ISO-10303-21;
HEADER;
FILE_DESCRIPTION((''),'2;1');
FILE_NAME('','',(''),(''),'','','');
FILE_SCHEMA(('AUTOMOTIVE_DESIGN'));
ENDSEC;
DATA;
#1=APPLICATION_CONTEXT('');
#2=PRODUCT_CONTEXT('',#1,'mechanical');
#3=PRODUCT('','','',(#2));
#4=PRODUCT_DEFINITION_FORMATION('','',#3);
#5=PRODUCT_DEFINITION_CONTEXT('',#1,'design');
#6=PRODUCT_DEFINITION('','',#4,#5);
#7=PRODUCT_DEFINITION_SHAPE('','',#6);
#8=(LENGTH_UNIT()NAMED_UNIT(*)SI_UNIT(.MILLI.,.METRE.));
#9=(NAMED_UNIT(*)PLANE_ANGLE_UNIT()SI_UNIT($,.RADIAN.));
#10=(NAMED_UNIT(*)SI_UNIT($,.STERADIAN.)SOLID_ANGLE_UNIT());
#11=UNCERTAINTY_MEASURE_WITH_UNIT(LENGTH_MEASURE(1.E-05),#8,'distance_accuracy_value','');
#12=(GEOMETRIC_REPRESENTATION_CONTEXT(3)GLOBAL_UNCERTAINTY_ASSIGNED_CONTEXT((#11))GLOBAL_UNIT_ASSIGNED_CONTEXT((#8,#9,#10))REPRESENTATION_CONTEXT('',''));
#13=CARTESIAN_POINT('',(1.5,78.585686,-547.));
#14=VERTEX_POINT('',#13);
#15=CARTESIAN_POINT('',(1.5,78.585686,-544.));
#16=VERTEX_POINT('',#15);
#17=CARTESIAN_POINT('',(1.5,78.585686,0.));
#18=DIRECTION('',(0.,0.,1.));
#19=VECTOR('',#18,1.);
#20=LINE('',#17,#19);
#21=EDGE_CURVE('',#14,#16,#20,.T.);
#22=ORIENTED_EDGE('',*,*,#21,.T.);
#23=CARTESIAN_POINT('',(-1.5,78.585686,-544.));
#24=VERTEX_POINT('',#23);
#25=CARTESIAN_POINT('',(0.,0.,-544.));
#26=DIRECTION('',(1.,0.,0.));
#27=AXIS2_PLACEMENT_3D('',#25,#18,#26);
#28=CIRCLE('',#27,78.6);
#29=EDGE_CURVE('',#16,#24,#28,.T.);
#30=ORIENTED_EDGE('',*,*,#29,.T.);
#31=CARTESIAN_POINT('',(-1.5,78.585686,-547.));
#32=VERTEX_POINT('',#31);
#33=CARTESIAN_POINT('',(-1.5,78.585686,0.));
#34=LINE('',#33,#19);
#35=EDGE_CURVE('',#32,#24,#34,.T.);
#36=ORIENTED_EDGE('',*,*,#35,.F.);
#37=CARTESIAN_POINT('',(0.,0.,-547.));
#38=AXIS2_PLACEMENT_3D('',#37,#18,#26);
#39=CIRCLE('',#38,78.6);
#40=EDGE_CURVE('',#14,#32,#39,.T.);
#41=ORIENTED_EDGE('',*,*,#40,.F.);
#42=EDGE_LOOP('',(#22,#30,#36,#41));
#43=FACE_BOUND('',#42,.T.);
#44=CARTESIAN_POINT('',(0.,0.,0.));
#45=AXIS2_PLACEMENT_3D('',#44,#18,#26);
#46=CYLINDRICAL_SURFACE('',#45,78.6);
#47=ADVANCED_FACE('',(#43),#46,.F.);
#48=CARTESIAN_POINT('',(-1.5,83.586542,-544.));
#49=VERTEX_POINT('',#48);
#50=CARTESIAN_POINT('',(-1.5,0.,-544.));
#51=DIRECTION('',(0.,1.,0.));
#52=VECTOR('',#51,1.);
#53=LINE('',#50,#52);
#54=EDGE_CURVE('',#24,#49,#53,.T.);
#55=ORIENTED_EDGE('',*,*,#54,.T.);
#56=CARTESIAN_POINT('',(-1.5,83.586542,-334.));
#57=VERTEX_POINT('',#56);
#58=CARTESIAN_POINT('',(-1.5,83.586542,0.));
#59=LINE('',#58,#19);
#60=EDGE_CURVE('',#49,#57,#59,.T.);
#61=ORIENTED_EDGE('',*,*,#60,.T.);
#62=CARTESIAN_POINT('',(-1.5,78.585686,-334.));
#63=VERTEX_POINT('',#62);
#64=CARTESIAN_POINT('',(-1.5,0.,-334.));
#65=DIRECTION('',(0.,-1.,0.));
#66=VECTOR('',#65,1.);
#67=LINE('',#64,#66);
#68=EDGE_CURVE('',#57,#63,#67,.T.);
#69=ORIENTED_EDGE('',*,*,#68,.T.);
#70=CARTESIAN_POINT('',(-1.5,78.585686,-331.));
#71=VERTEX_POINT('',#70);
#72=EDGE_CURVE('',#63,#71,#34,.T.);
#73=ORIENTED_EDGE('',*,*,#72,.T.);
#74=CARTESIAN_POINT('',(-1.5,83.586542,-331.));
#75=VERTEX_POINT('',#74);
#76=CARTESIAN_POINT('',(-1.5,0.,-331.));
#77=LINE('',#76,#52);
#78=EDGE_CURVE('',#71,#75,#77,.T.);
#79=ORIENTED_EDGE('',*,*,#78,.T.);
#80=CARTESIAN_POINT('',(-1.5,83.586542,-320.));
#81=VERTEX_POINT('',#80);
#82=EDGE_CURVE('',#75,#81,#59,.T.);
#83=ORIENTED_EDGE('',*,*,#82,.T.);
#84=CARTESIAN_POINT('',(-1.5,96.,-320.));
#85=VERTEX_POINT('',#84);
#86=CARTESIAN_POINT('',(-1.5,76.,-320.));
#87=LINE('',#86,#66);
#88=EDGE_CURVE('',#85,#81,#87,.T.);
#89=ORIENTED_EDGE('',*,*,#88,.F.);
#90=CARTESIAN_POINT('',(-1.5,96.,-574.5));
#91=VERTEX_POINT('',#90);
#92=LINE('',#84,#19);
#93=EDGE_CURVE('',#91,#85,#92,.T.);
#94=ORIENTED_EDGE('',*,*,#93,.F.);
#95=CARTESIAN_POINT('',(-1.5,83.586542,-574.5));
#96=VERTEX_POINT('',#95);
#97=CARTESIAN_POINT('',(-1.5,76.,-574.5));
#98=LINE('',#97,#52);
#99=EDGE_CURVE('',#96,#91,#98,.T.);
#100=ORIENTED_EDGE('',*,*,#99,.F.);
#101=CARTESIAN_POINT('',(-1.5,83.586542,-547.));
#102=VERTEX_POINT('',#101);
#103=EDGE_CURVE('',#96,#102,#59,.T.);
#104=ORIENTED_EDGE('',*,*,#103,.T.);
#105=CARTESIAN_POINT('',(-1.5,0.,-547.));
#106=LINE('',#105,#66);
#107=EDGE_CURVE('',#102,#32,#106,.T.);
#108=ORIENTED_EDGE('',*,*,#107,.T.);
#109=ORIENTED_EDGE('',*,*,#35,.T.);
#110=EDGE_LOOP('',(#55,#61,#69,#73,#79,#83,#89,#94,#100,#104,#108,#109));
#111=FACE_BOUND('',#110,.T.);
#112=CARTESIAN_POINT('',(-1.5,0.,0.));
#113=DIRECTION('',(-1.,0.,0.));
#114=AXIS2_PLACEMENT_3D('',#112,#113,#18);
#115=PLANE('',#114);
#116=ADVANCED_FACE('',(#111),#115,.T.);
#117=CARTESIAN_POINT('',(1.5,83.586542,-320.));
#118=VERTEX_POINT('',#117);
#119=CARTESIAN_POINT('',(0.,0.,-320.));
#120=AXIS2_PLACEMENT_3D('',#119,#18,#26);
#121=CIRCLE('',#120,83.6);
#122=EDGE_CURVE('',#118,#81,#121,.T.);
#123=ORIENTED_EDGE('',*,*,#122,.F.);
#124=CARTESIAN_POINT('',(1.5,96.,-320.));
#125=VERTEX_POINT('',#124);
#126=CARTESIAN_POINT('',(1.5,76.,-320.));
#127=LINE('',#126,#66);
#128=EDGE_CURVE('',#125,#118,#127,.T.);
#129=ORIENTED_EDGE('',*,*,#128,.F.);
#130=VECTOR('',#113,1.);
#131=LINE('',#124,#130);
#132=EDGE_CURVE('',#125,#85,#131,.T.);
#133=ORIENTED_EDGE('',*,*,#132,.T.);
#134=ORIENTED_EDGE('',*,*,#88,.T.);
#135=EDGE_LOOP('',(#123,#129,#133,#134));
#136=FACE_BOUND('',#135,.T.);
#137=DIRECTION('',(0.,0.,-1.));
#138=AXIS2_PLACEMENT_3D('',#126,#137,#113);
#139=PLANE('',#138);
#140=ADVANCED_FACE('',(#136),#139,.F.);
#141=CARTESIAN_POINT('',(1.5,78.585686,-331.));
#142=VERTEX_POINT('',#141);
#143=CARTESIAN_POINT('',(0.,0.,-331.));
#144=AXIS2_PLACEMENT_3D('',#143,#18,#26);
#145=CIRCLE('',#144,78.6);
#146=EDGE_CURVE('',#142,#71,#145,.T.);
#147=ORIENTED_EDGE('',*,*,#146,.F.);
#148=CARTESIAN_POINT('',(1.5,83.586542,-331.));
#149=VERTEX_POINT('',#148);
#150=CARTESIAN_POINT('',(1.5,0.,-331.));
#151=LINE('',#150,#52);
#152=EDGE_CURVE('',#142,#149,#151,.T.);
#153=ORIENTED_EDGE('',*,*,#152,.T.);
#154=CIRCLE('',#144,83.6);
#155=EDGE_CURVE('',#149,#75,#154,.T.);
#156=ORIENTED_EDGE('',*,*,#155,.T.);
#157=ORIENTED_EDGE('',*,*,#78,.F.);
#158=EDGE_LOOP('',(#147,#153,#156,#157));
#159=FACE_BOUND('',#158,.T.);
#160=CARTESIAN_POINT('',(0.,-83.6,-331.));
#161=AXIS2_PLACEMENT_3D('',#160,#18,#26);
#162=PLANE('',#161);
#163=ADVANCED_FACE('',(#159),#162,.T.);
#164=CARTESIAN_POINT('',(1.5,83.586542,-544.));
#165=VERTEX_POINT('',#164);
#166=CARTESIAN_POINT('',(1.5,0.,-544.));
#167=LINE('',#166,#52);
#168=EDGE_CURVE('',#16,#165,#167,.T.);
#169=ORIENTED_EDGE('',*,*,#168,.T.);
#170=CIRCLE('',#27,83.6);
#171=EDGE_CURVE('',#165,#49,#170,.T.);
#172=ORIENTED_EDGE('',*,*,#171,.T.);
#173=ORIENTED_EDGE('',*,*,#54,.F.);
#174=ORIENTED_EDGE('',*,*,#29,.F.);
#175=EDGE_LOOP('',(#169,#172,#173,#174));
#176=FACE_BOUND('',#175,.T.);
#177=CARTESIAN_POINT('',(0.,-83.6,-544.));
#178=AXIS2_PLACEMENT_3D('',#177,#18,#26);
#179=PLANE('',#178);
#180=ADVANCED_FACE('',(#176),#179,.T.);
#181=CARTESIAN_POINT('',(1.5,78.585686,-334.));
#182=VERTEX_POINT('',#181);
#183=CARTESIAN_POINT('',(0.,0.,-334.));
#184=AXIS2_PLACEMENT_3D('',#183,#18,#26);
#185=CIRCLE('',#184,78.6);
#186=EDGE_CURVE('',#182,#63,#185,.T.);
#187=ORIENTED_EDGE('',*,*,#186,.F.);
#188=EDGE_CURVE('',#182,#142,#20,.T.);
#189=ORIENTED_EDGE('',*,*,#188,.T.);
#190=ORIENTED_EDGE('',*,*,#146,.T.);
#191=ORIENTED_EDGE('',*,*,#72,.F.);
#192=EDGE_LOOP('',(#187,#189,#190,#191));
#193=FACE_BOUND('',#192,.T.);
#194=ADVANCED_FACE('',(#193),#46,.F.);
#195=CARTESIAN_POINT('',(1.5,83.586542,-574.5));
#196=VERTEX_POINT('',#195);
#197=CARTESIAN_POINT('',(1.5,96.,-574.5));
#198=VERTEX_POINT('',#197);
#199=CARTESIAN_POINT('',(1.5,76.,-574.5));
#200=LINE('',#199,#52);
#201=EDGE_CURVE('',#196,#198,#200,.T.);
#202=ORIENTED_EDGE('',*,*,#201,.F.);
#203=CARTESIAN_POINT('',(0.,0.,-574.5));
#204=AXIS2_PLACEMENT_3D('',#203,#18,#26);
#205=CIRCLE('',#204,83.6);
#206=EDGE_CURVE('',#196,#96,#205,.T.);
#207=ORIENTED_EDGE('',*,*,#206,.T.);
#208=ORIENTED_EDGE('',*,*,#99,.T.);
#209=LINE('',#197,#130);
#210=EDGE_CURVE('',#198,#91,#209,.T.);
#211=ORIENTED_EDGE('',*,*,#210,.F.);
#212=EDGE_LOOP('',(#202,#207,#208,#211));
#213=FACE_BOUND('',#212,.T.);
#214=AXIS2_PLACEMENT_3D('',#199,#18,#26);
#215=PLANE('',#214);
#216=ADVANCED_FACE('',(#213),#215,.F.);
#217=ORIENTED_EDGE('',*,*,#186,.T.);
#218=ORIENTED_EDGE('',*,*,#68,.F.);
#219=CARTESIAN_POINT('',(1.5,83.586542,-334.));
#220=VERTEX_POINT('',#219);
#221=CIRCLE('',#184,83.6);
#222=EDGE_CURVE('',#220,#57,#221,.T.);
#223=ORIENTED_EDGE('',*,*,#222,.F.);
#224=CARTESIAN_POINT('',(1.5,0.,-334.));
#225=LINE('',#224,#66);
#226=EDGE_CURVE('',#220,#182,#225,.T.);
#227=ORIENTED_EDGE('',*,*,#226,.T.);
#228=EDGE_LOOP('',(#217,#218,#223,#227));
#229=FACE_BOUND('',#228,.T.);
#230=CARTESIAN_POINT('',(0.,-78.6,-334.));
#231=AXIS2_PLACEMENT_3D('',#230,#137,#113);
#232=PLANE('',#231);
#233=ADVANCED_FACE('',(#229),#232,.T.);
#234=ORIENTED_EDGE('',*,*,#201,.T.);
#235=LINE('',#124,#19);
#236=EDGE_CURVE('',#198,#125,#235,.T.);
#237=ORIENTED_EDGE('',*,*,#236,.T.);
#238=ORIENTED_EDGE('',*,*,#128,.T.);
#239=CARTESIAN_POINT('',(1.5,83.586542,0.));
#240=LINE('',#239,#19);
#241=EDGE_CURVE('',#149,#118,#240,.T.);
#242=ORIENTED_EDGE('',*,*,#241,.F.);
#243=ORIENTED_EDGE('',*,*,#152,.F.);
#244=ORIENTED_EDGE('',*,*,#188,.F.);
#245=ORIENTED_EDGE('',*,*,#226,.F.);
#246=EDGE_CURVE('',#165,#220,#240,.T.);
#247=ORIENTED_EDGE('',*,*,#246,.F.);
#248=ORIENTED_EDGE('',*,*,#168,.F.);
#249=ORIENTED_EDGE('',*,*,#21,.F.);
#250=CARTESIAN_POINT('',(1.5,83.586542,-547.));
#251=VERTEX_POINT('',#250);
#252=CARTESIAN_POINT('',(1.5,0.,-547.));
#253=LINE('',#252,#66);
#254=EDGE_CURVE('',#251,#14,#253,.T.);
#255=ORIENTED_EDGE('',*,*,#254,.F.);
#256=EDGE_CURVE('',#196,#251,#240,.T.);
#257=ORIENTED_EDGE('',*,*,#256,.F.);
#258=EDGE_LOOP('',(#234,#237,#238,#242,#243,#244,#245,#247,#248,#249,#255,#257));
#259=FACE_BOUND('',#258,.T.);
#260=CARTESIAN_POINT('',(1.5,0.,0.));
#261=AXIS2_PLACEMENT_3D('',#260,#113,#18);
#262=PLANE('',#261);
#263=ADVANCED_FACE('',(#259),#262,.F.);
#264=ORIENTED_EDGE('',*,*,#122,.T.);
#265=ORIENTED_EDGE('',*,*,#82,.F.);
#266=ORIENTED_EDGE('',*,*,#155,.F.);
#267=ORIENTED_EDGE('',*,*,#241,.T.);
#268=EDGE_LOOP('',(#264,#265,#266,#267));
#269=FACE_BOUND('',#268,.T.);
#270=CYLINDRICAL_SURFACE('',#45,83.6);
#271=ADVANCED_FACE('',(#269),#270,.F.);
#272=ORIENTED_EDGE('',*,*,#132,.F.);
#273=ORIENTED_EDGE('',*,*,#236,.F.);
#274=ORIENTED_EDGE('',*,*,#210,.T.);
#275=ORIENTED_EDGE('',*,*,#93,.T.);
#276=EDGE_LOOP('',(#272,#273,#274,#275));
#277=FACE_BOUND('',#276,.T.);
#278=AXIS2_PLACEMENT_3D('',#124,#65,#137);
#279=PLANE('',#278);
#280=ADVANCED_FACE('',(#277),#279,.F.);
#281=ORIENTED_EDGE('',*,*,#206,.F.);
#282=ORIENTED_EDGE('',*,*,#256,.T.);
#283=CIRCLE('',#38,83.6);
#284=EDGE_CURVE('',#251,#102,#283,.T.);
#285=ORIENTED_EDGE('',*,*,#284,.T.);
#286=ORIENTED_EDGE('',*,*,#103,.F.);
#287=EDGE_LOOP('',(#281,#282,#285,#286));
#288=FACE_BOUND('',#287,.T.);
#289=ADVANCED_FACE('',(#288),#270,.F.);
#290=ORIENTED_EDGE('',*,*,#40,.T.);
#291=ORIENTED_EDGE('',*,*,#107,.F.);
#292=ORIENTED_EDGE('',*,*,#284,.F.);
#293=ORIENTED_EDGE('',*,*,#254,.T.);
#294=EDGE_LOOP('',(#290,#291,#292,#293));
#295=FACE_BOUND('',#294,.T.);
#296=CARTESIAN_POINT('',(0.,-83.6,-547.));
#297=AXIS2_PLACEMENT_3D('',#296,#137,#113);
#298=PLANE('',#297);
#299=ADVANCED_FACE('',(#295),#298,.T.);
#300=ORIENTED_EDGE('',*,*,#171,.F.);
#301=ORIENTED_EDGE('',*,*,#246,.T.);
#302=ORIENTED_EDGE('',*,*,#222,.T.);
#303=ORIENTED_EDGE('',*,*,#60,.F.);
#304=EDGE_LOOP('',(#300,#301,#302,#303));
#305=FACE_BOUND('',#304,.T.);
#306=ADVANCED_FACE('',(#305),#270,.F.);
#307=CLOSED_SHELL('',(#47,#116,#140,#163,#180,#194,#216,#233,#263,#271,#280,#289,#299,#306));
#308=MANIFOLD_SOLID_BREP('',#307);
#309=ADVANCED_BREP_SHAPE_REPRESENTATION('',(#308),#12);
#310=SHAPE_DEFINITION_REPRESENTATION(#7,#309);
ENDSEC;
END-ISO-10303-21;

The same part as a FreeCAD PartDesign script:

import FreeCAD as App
import Part
import Sketcher

V = App.Vector
Q = App.Units.Quantity


def add_polygon(sketch, points):
    """Adds a closed chain of lines whose ends are joined by coincident constraints."""
    first, n = sketch.GeometryCount, len(points)
    for a, b in zip(points, points[1:] + points[:1]):
        sketch.addGeometry(Part.LineSegment(App.Vector(*a, 0), App.Vector(*b, 0)), False)
    for i in range(n):
        sketch.addConstraint(Sketcher.Constraint("Coincident", first + i, 2, first + (i + 1) % n, 1))

doc = App.newDocument("Part")
params = doc.addObject("Spreadsheet::Sheet", "Params")
for row, (alias, value) in enumerate([
    ("sketch1_width", "20 mm"),
    ("sketch1_height", "254.5 mm"),
    ("pad1_length", "3 mm"),
    ("sketch2_width", "5 mm"),
    ("sketch2_height", "11 mm"),
    ("sketch2_height2", "3 mm"),
    ("sketch2_height3", "210 mm"),
    ("sketch2_height4", "254.5 mm"),
    ("groove_angle", "180 deg"),
    ("sketch3_width", "5 mm"),
    ("sketch3_height", "11 mm"),
    ("sketch3_height2", "3 mm"),
    ("sketch3_height3", "210 mm"),
    ("sketch3_height4", "254.5 mm"),
    ("groove2_angle", "180 deg"),
], start=1):
    params.set(f"A{row}", alias)
    params.set(f"B{row}", "=" + value)
    params.setAlias(f"B{row}", alias)

body = doc.addObject("PartDesign::Body", "Body")

sketch1 = body.newObject("Sketcher::SketchObject", "Sketch")
sketch1.AttachmentSupport = (doc.getObject("YZ_Plane"), [""])
sketch1.MapMode = "FlatFace"
add_polygon(sketch1, [(96, -320), (76, -320), (76, -574), (96, -574)])
sketch1.addConstraint(Sketcher.Constraint("Horizontal", 0))
sketch1.addConstraint(Sketcher.Constraint("Vertical", 1))
sketch1.addConstraint(Sketcher.Constraint("Horizontal", 2))
sketch1.addConstraint(Sketcher.Constraint("Vertical", 3))
sketch1.addConstraint(Sketcher.Constraint("DistanceX", 0, 2, 0, 1, Q("20 mm")))
sketch1.addConstraint(Sketcher.Constraint("DistanceY", 1, 2, 1, 1, Q("254.5 mm")))
sketch1.addConstraint(Sketcher.Constraint("DistanceX", -1, 1, 0, 2, Q("76 mm")))
sketch1.addConstraint(Sketcher.Constraint("DistanceY", 0, 2, -1, 1, Q("320 mm")))
sketch1.setExpression("Constraints[8]", "Params.sketch1_width")
sketch1.setExpression("Constraints[9]", "Params.sketch1_height")
pad1 = body.newObject("PartDesign::Pad", "Pad")
pad1.Profile = sketch1
pad1.setExpression("Length", "Params.pad1_length")
pad1.Midplane = True

sketch2 = body.newObject("Sketcher::SketchObject", "Sketch001")
sketch2.AttachmentSupport = (doc.getObject("YZ_Plane"), [""])
sketch2.MapMode = "FlatFace"
add_polygon(sketch2, [(83.6, -331), (83.6, -320), (65.2, -320), (65.2, -574.5), (83.6, -574.5), (83.6, -547), (78.6, -547), (78.6, -544), (83.6, -544), (83.6, -334), (78.6, -334), (78.6, -331)])
sketch2.addConstraint(Sketcher.Constraint("Vertical", 0))
sketch2.addConstraint(Sketcher.Constraint("Horizontal", 1))
sketch2.addConstraint(Sketcher.Constraint("Vertical", 2))
sketch2.addConstraint(Sketcher.Constraint("Horizontal", 3))
sketch2.addConstraint(Sketcher.Constraint("Vertical", 4))
sketch2.addConstraint(Sketcher.Constraint("Horizontal", 5))
sketch2.addConstraint(Sketcher.Constraint("Vertical", 6))
sketch2.addConstraint(Sketcher.Constraint("Horizontal", 7))
sketch2.addConstraint(Sketcher.Constraint("Vertical", 8))
sketch2.addConstraint(Sketcher.Constraint("Horizontal", 9))
sketch2.addConstraint(Sketcher.Constraint("Vertical", 10))
sketch2.addConstraint(Sketcher.Constraint("Horizontal", 11))
sketch2.addConstraint(Sketcher.Constraint("Vertical", 0, 2, 3, 2))
sketch2.addConstraint(Sketcher.Constraint("Vertical", 4, 2, 7, 2))
sketch2.addConstraint(Sketcher.Constraint("Vertical", 6, 2, 9, 2))
sketch2.addConstraint(Sketcher.Constraint("Equal", 6, 10))
sketch2.addConstraint(Sketcher.Constraint("DistanceX", 5, 2, 5, 1, Q("5 mm")))
sketch2.addConstraint(Sketcher.Constraint("DistanceY", 0, 1, 0, 2, Q("11 mm")))
sketch2.addConstraint(Sketcher.Constraint("DistanceY", 6, 1, 6, 2, Q("3 mm")))
sketch2.addConstraint(Sketcher.Constraint("DistanceY", 8, 1, 8, 2, Q("210 mm")))
sketch2.addConstraint(Sketcher.Constraint("DistanceY", 2, 2, 2, 1, Q("254.5 mm")))
sketch2.addConstraint(Sketcher.Constraint("DistanceY", 0, 2, -1, 1, Q("320 mm")))
sketch2.addConstraint(Sketcher.Constraint("DistanceX", -1, 1, 0, 2, Q("83.6 mm")))
sketch2.addConstraint(Sketcher.Constraint("DistanceX", 1, 2, 1, 1, Q("18.364244 mm")))
sketch2.setExpression("Constraints[28]", "Params.sketch2_width")
sketch2.setExpression("Constraints[29]", "Params.sketch2_height")
sketch2.setExpression("Constraints[30]", "Params.sketch2_height2")
sketch2.setExpression("Constraints[31]", "Params.sketch2_height3")
sketch2.setExpression("Constraints[32]", "Params.sketch2_height4")
groove = body.newObject("PartDesign::Groove", "Groove")
groove.Profile = sketch2
groove.ReferenceAxis = (sketch2, ["V_Axis"])
groove.setExpression("Angle", "Params.groove_angle")
groove.Reversed = True

sketch3 = body.newObject("Sketcher::SketchObject", "Sketch002")
sketch3.AttachmentSupport = (doc.getObject("YZ_Plane"), [""])
sketch3.MapMode = "FlatFace"
add_polygon(sketch3, [(83.6, -331), (83.6, -320), (65.2, -320), (65.2, -574.5), (83.6, -574.5), (83.6, -547), (78.6, -547), (78.6, -544), (83.6, -544), (83.6, -334), (78.6, -334), (78.6, -331)])
sketch3.addConstraint(Sketcher.Constraint("Vertical", 0))
sketch3.addConstraint(Sketcher.Constraint("Horizontal", 1))
sketch3.addConstraint(Sketcher.Constraint("Vertical", 2))
sketch3.addConstraint(Sketcher.Constraint("Horizontal", 3))
sketch3.addConstraint(Sketcher.Constraint("Vertical", 4))
sketch3.addConstraint(Sketcher.Constraint("Horizontal", 5))
sketch3.addConstraint(Sketcher.Constraint("Vertical", 6))
sketch3.addConstraint(Sketcher.Constraint("Horizontal", 7))
sketch3.addConstraint(Sketcher.Constraint("Vertical", 8))
sketch3.addConstraint(Sketcher.Constraint("Horizontal", 9))
sketch3.addConstraint(Sketcher.Constraint("Vertical", 10))
sketch3.addConstraint(Sketcher.Constraint("Horizontal", 11))
sketch3.addConstraint(Sketcher.Constraint("Vertical", 0, 2, 3, 2))
sketch3.addConstraint(Sketcher.Constraint("Vertical", 4, 2, 7, 2))
sketch3.addConstraint(Sketcher.Constraint("Vertical", 6, 2, 9, 2))
sketch3.addConstraint(Sketcher.Constraint("Equal", 6, 10))
sketch3.addConstraint(Sketcher.Constraint("DistanceX", 5, 2, 5, 1, Q("5 mm")))
sketch3.addConstraint(Sketcher.Constraint("DistanceY", 0, 1, 0, 2, Q("11 mm")))
sketch3.addConstraint(Sketcher.Constraint("DistanceY", 6, 1, 6, 2, Q("3 mm")))
sketch3.addConstraint(Sketcher.Constraint("DistanceY", 8, 1, 8, 2, Q("210 mm")))
sketch3.addConstraint(Sketcher.Constraint("DistanceY", 2, 2, 2, 1, Q("254.5 mm")))
sketch3.addConstraint(Sketcher.Constraint("DistanceY", 0, 2, -1, 1, Q("320 mm")))
sketch3.addConstraint(Sketcher.Constraint("DistanceX", -1, 1, 0, 2, Q("83.6 mm")))
sketch3.addConstraint(Sketcher.Constraint("DistanceX", 1, 2, 1, 1, Q("18.364244 mm")))
sketch3.setExpression("Constraints[28]", "Params.sketch3_width")
sketch3.setExpression("Constraints[29]", "Params.sketch3_height")
sketch3.setExpression("Constraints[30]", "Params.sketch3_height2")
sketch3.setExpression("Constraints[31]", "Params.sketch3_height3")
sketch3.setExpression("Constraints[32]", "Params.sketch3_height4")
groove2 = body.newObject("PartDesign::Groove", "Groove001")
groove2.Profile = sketch3
groove2.ReferenceAxis = (sketch3, ["V_Axis"])
groove2.setExpression("Angle", "Params.groove2_angle")

doc.recompute()
